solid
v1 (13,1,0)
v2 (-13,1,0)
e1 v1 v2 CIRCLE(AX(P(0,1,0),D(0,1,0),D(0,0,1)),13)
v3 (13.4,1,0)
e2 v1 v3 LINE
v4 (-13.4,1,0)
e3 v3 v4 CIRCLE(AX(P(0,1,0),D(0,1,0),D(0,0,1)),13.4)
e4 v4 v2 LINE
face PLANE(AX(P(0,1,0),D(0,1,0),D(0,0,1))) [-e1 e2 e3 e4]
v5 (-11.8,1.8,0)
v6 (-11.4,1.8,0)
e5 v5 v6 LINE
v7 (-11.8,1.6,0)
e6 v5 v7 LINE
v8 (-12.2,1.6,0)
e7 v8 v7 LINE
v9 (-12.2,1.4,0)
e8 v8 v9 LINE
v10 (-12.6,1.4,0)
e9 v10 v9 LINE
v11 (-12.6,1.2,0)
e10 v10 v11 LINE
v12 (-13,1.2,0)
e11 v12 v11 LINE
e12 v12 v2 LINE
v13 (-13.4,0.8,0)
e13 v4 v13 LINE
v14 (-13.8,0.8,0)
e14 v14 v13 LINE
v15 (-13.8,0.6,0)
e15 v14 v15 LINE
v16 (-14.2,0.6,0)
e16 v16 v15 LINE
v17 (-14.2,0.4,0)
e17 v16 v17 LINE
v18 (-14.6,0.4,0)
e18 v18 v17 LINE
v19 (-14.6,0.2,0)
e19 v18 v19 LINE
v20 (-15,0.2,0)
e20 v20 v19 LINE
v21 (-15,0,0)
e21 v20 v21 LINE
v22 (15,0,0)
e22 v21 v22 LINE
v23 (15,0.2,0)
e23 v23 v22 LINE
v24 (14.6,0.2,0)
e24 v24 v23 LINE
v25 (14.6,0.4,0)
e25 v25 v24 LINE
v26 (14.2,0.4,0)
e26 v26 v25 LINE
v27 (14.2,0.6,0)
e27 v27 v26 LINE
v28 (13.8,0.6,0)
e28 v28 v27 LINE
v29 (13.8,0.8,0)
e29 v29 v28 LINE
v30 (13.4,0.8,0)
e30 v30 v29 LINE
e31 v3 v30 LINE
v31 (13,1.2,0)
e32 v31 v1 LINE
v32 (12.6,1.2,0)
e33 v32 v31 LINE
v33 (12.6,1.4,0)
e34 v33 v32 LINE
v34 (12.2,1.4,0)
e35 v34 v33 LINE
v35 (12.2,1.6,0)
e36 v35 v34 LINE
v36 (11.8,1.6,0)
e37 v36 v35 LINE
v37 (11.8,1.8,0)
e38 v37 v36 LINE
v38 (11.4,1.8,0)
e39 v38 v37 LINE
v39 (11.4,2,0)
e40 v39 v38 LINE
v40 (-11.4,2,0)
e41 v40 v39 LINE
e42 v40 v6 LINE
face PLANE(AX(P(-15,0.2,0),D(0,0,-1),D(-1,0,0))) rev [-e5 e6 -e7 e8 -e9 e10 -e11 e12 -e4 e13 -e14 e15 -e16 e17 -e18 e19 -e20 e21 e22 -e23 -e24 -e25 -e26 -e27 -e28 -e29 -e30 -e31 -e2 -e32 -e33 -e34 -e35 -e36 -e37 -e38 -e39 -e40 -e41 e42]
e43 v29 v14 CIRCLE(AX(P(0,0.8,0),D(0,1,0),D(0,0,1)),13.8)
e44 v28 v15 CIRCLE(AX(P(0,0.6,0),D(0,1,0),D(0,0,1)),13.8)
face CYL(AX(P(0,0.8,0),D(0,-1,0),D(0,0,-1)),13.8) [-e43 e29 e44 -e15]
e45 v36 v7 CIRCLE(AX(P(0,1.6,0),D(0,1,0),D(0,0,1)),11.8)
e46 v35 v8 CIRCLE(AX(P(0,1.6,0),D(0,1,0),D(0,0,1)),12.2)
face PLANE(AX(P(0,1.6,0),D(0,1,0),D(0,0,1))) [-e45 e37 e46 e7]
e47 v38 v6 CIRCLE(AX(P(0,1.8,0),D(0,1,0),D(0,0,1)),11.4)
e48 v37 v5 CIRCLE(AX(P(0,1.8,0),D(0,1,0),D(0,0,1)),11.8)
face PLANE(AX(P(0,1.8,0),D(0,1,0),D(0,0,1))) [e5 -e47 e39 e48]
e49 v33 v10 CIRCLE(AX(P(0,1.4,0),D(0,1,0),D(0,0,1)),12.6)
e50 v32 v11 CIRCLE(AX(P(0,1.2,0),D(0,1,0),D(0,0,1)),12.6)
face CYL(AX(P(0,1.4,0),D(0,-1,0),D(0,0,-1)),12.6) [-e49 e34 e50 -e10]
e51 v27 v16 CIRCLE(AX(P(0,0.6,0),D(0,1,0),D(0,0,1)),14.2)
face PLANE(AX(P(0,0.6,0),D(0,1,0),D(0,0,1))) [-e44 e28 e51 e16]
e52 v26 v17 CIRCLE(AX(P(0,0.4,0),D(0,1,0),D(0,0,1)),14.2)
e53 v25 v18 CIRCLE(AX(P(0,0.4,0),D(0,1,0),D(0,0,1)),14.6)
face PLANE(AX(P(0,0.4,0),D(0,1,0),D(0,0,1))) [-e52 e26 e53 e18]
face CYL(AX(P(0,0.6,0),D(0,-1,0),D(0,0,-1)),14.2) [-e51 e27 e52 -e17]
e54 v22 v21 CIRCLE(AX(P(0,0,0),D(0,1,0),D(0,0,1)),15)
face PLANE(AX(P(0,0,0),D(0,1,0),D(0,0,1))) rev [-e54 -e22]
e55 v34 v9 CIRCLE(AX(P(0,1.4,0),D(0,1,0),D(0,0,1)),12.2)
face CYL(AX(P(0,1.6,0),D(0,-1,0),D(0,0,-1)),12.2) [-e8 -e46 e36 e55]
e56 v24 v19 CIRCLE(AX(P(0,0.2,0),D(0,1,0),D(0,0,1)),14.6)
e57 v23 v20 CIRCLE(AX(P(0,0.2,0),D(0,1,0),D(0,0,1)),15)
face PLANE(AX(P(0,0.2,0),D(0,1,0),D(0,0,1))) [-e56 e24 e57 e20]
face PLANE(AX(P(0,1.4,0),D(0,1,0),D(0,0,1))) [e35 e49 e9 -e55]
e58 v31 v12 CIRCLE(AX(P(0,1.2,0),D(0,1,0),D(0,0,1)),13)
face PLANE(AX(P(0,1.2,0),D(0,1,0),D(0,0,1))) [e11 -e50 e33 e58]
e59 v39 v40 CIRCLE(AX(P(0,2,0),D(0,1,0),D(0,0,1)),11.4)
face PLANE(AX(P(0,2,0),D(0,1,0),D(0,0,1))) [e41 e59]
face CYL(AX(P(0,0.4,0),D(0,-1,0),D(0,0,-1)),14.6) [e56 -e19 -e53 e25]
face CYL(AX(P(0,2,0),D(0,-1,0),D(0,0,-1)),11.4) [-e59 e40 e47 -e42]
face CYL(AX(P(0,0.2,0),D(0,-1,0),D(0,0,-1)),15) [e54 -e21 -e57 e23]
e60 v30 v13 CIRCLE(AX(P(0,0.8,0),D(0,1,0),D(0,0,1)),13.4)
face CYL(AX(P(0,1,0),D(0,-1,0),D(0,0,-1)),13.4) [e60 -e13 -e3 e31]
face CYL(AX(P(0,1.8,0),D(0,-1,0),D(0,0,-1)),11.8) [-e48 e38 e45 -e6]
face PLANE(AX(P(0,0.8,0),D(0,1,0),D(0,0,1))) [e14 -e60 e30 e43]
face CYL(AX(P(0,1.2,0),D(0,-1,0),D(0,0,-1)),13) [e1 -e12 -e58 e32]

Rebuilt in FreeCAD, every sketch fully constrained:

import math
import FreeCAD as App
import Part
import Sketcher

V = App.Vector

doc = App.newDocument("Part")
body = doc.addObject("PartDesign::Body", "Body")

# Sketch on XZ plane
sketch1 = doc.addObject("Sketcher::SketchObject", "Sketch")
body.addObject(sketch1)
sketch1.AttachmentSupport = (doc.XZ_Plane, [""])
sketch1.MapMode = "FlatFace"
sketch1.addGeometry([
    Part.LineSegment(V(-15, 0, 0), V(15, 0, 0)),
    Part.ArcOfCircle(Part.Circle(V(0, 0, 0), V(0, 0, 1), 15), math.radians(180), math.radians(360)),
], False)
sketch1.addConstraint([
    Sketcher.Constraint("Coincident", 0, 1, 1, 1),
    Sketcher.Constraint("Coincident", 1, 2, 0, 2),
    Sketcher.Constraint("Horizontal", 0),
    Sketcher.Constraint("Coincident", 1, 3, -1, 1),
    Sketcher.Constraint("PointOnObject", 0, 1, -1),
    Sketcher.Constraint("Radius", 1, 15.0),
])
pad1 = doc.addObject("PartDesign::Pad", "Pad")
body.addObject(pad1)
pad1.Profile = sketch1
pad1.Length = 0.2
pad1.Reversed = True

# Sketch on XZ plane
sketch2 = doc.addObject("Sketcher::SketchObject", "Sketch001")
body.addObject(sketch2)
sketch2.AttachmentSupport = (doc.XZ_Plane, [""])
sketch2.MapMode = "FlatFace"
sketch2.AttachmentOffset = App.Placement(V(0, 0, -0.2), App.Rotation())
sketch2.addGeometry([
    Part.LineSegment(V(-15, 0, 0), V(15, 0, 0)),
    Part.ArcOfCircle(Part.Circle(V(0, 0, 0), V(0, 0, 1), 15), math.radians(180), math.radians(360)),
], False)
sketch2.addConstraint([
    Sketcher.Constraint("Coincident", 0, 1, 1, 1),
    Sketcher.Constraint("Coincident", 1, 2, 0, 2),
    Sketcher.Constraint("Horizontal", 0),
    Sketcher.Constraint("Coincident", 1, 3, -1, 1),
    Sketcher.Constraint("PointOnObject", 0, 1, -1),
    Sketcher.Constraint("Radius", 1, 14.6),
])
pad2 = doc.addObject("PartDesign::Pad", "Pad001")
body.addObject(pad2)
pad2.Profile = sketch2
pad2.Length = 0.2
pad2.Reversed = True

# Sketch on XZ plane
sketch3 = doc.addObject("Sketcher::SketchObject", "Sketch002")
body.addObject(sketch3)
sketch3.AttachmentSupport = (doc.XZ_Plane, [""])
sketch3.MapMode = "FlatFace"
sketch3.AttachmentOffset = App.Placement(V(0, 0, -0.4), App.Rotation())
sketch3.addGeometry([
    Part.LineSegment(V(-14, 0, 0), V(14, 0, 0)),
    Part.ArcOfCircle(Part.Circle(V(0, 0, 0), V(0, 0, 1), 14), math.radians(180), math.radians(360)),
], False)
sketch3.addConstraint([
    Sketcher.Constraint("Coincident", 0, 1, 1, 1),
    Sketcher.Constraint("Coincident", 1, 2, 0, 2),
    Sketcher.Constraint("Horizontal", 0),
    Sketcher.Constraint("Coincident", 1, 3, -1, 1),
    Sketcher.Constraint("PointOnObject", 0, 1, -1),
    Sketcher.Constraint("Radius", 1, 14.2),
])
pad3 = doc.addObject("PartDesign::Pad", "Pad002")
body.addObject(pad3)
pad3.Profile = sketch3
pad3.Length = 0.2
pad3.Reversed = True

# Sketch on XZ plane
sketch4 = doc.addObject("Sketcher::SketchObject", "Sketch003")
body.addObject(sketch4)
sketch4.AttachmentSupport = (doc.XZ_Plane, [""])
sketch4.MapMode = "FlatFace"
sketch4.AttachmentOffset = App.Placement(V(0, 0, -0.6), App.Rotation())
sketch4.addGeometry([
    Part.LineSegment(V(-14, 0, 0), V(14, 0, 0)),
    Part.ArcOfCircle(Part.Circle(V(0, 0, 0), V(0, 0, 1), 14), math.radians(180), math.radians(360)),
], False)
sketch4.addConstraint([
    Sketcher.Constraint("Coincident", 0, 1, 1, 1),
    Sketcher.Constraint("Coincident", 1, 2, 0, 2),
    Sketcher.Constraint("Horizontal", 0),
    Sketcher.Constraint("Coincident", 1, 3, -1, 1),
    Sketcher.Constraint("PointOnObject", 0, 1, -1),
    Sketcher.Constraint("Radius", 1, 13.8),
])
pad4 = doc.addObject("PartDesign::Pad", "Pad003")
body.addObject(pad4)
pad4.Profile = sketch4
pad4.Length = 0.2
pad4.Reversed = True

# Sketch on XZ plane
sketch5 = doc.addObject("Sketcher::SketchObject", "Sketch004")
body.addObject(sketch5)
sketch5.AttachmentSupport = (doc.XZ_Plane, [""])
sketch5.MapMode = "FlatFace"
sketch5.AttachmentOffset = App.Placement(V(0, 0, -0.8), App.Rotation())
sketch5.addGeometry([
    Part.LineSegment(V(-13, 0, 0), V(13, 0, 0)),
    Part.ArcOfCircle(Part.Circle(V(0, 0, 0), V(0, 0, 1), 13), math.radians(180), math.radians(360)),
], False)
sketch5.addConstraint([
    Sketcher.Constraint("Coincident", 0, 1, 1, 1),
    Sketcher.Constraint("Coincident", 1, 2, 0, 2),
    Sketcher.Constraint("Horizontal", 0),
    Sketcher.Constraint("Coincident", 1, 3, -1, 1),
    Sketcher.Constraint("PointOnObject", 0, 1, -1),
    Sketcher.Constraint("Radius", 1, 13.4),
])
pad5 = doc.addObject("PartDesign::Pad", "Pad004")
body.addObject(pad5)
pad5.Profile = sketch5
pad5.Length = 0.2
pad5.Reversed = True

# Sketch on XZ plane
sketch6 = doc.addObject("Sketcher::SketchObject", "Sketch005")
body.addObject(sketch6)
sketch6.AttachmentSupport = (doc.XZ_Plane, [""])
sketch6.MapMode = "FlatFace"
sketch6.AttachmentOffset = App.Placement(V(0, 0, -1), App.Rotation())
sketch6.addGeometry([
    Part.LineSegment(V(-13, 0, 0), V(13, 0, 0)),
    Part.ArcOfCircle(Part.Circle(V(0, 0, 0), V(0, 0, 1), 13), math.radians(180), math.radians(360)),
], False)
sketch6.addConstraint([
    Sketcher.Constraint("Coincident", 0, 1, 1, 1),
    Sketcher.Constraint("Coincident", 1, 2, 0, 2),
    Sketcher.Constraint("Horizontal", 0),
    Sketcher.Constraint("Coincident", 1, 3, -1, 1),
    Sketcher.Constraint("PointOnObject", 0, 1, -1),
    Sketcher.Constraint("Radius", 1, 13.0),
])
pad6 = doc.addObject("PartDesign::Pad", "Pad005")
body.addObject(pad6)
pad6.Profile = sketch6
pad6.Length = 0.2
pad6.Reversed = True

# Sketch on XZ plane
sketch7 = doc.addObject("Sketcher::SketchObject", "Sketch006")
body.addObject(sketch7)
sketch7.AttachmentSupport = (doc.XZ_Plane, [""])
sketch7.MapMode = "FlatFace"
sketch7.AttachmentOffset = App.Placement(V(0, 0, -1.2), App.Rotation())
sketch7.addGeometry([
    Part.LineSegment(V(-13, 0, 0), V(13, 0, 0)),
    Part.ArcOfCircle(Part.Circle(V(0, 0, 0), V(0, 0, 1), 13), math.radians(180), math.radians(360)),
], False)
sketch7.addConstraint([
    Sketcher.Constraint("Coincident", 0, 1, 1, 1),
    Sketcher.Constraint("Coincident", 1, 2, 0, 2),
    Sketcher.Constraint("Horizontal", 0),
    Sketcher.Constraint("Coincident", 1, 3, -1, 1),
    Sketcher.Constraint("PointOnObject", 0, 1, -1),
    Sketcher.Constraint("Radius", 1, 12.6),
])
pad7 = doc.addObject("PartDesign::Pad", "Pad006")
body.addObject(pad7)
pad7.Profile = sketch7
pad7.Length = 0.2
pad7.Reversed = True

# Sketch on XZ plane
sketch8 = doc.addObject("Sketcher::SketchObject", "Sketch007")
body.addObject(sketch8)
sketch8.AttachmentSupport = (doc.XZ_Plane, [""])
sketch8.MapMode = "FlatFace"
sketch8.AttachmentOffset = App.Placement(V(0, 0, -1.4), App.Rotation())
sketch8.addGeometry([
    Part.LineSegment(V(-12, 0, 0), V(12, 0, 0)),
    Part.ArcOfCircle(Part.Circle(V(0, 0, 0), V(0, 0, 1), 12), math.radians(180), math.radians(360)),
], False)
sketch8.addConstraint([
    Sketcher.Constraint("Coincident", 0, 1, 1, 1),
    Sketcher.Constraint("Coincident", 1, 2, 0, 2),
    Sketcher.Constraint("Horizontal", 0),
    Sketcher.Constraint("Coincident", 1, 3, -1, 1),
    Sketcher.Constraint("PointOnObject", 0, 1, -1),
    Sketcher.Constraint("Radius", 1, 12.2),
])
pad8 = doc.addObject("PartDesign::Pad", "Pad007")
body.addObject(pad8)
pad8.Profile = sketch8
pad8.Length = 0.2
pad8.Reversed = True

# Sketch on XZ plane
sketch9 = doc.addObject("Sketcher::SketchObject", "Sketch008")
body.addObject(sketch9)
sketch9.AttachmentSupport = (doc.XZ_Plane, [""])
sketch9.MapMode = "FlatFace"
sketch9.AttachmentOffset = App.Placement(V(0, 0, -1.6), App.Rotation())
sketch9.addGeometry([
    Part.LineSegment(V(-12, 0, 0), V(12, 0, 0)),
    Part.ArcOfCircle(Part.Circle(V(0, 0, 0), V(0, 0, 1), 12), math.radians(180), math.radians(360)),
], False)
sketch9.addConstraint([
    Sketcher.Constraint("Coincident", 0, 1, 1, 1),
    Sketcher.Constraint("Coincident", 1, 2, 0, 2),
    Sketcher.Constraint("Horizontal", 0),
    Sketcher.Constraint("Coincident", 1, 3, -1, 1),
    Sketcher.Constraint("PointOnObject", 0, 1, -1),
    Sketcher.Constraint("Radius", 1, 11.8),
])
pad9 = doc.addObject("PartDesign::Pad", "Pad008")
body.addObject(pad9)
pad9.Profile = sketch9
pad9.Length = 0.2
pad9.Reversed = True

# Sketch on XZ plane
sketch10 = doc.addObject("Sketcher::SketchObject", "Sketch009")
body.addObject(sketch10)
sketch10.AttachmentSupport = (doc.XZ_Plane, [""])
sketch10.MapMode = "FlatFace"
sketch10.AttachmentOffset = App.Placement(V(0, 0, -1.8), App.Rotation())
sketch10.addGeometry([
    Part.LineSegment(V(-11, 0, 0), V(11, 0, 0)),
    Part.ArcOfCircle(Part.Circle(V(0, 0, 0), V(0, 0, 1), 11), math.radians(180), math.radians(360)),
], False)
sketch10.addConstraint([
    Sketcher.Constraint("Coincident", 0, 1, 1, 1),
    Sketcher.Constraint("Coincident", 1, 2, 0, 2),
    Sketcher.Constraint("Horizontal", 0),
    Sketcher.Constraint("Coincident", 1, 3, -1, 1),
    Sketcher.Constraint("PointOnObject", 0, 1, -1),
    Sketcher.Constraint("Radius", 1, 11.4),
])
pad10 = doc.addObject("PartDesign::Pad", "Pad009")
body.addObject(pad10)
pad10.Profile = sketch10
pad10.Length = 0.2
pad10.Reversed = True

doc.recompute()
